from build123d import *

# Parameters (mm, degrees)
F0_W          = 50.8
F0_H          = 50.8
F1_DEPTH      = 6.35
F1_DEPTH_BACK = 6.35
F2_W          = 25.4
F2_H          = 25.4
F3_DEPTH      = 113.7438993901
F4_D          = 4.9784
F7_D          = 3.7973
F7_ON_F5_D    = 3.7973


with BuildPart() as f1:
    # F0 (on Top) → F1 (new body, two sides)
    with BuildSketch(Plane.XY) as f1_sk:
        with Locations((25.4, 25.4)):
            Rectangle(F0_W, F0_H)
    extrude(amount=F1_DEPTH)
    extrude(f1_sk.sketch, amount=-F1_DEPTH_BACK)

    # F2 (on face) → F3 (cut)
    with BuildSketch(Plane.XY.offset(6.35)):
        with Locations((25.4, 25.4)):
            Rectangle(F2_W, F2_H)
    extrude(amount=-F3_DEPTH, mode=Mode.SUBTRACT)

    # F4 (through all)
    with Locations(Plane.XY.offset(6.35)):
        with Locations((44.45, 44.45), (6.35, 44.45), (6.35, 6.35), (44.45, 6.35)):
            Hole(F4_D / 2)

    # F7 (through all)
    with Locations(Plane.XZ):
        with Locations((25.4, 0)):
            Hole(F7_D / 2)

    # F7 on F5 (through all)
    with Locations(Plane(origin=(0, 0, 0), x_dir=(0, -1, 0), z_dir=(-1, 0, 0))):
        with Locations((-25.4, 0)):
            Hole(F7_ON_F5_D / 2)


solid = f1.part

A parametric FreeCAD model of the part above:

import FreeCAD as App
import Part
import Sketcher
Q = App.Units.Quantity

doc = App.newDocument("Part")
params = doc.addObject("Spreadsheet::Sheet", "Params")
for row, (alias, value) in enumerate([
    ("sketch1_width", "2 in"),
    ("pad1_length", "0.25 in"),
    ("pad1_length2", "0.25 in"),
    ("sketch2_width", "1 in"),
    ("pocket1_length", "113.743899 mm"),
    ("sketch3_diameter", "0.196 in"),
    ("hole_diameter", "0.196 in"),
    ("hole2_diameter", "0.1495 in"),
    ("hole3_diameter", "0.1495 in"),
], start=1):
    params.set(f"A{row}", alias)
    params.set(f"B{row}", "=" + value)
    params.setAlias(f"B{row}", alias)

body = doc.addObject("PartDesign::Body", "Body")

sketch1 = body.newObject("Sketcher::SketchObject", "Sketch")
sketch1.AttachmentSupport = (doc.getObject("XY_Plane"), [""])
sketch1.MapMode = "FlatFace"
sketch1.addGeometry(Part.LineSegment(App.Vector(0, 51, 0), App.Vector(0, 0, 0)), False)
sketch1.addGeometry(Part.LineSegment(App.Vector(0, 0, 0), App.Vector(51, 0, 0)), False)
sketch1.addGeometry(Part.LineSegment(App.Vector(51, 0, 0), App.Vector(51, 51, 0)), False)
sketch1.addGeometry(Part.LineSegment(App.Vector(51, 51, 0), App.Vector(0, 51, 0)), False)
sketch1.addConstraint(Sketcher.Constraint("Coincident", 0, 2, 1, 1))
sketch1.addConstraint(Sketcher.Constraint("Coincident", 1, 2, 2, 1))
sketch1.addConstraint(Sketcher.Constraint("Coincident", 2, 2, 3, 1))
sketch1.addConstraint(Sketcher.Constraint("Coincident", 3, 2, 0, 1))
sketch1.addConstraint(Sketcher.Constraint("Vertical", 0))
sketch1.addConstraint(Sketcher.Constraint("Horizontal", 1))
sketch1.addConstraint(Sketcher.Constraint("Vertical", 2))
sketch1.addConstraint(Sketcher.Constraint("Horizontal", 3))
sketch1.addConstraint(Sketcher.Constraint("Coincident", 0, 2, -1, 1))
sketch1.addConstraint(Sketcher.Constraint("Equal", 3, 0))
sketch1.addConstraint(Sketcher.Constraint("DistanceX", 1, 1, 1, 2, Q("2 in")))
sketch1.setExpression("Constraints[10]", "Params.sketch1_width")
pad1 = body.newObject("PartDesign::Pad", "Pad")
pad1.Profile = sketch1
pad1.Type = "TwoLengths"
pad1.setExpression("Length", "Params.pad1_length")
pad1.setExpression("Length2", "Params.pad1_length2")

sketch2 = body.newObject("Sketcher::SketchObject", "Sketch001")
sketch2.AttachmentSupport = (doc.getObject("XY_Plane"), [""])
sketch2.MapMode = "FlatFace"
sketch2.AttachmentOffset = App.Placement(App.Vector(0, 0, 0.25 * 25.4), App.Rotation())
sketch2.addGeometry(Part.LineSegment(App.Vector(13, 38, 0), App.Vector(13, 13, 0)), False)
sketch2.addGeometry(Part.LineSegment(App.Vector(13, 13, 0), App.Vector(38, 13, 0)), False)
sketch2.addGeometry(Part.LineSegment(App.Vector(38, 13, 0), App.Vector(38, 38, 0)), False)
sketch2.addGeometry(Part.LineSegment(App.Vector(38, 38, 0), App.Vector(13, 38, 0)), False)
sketch2.addConstraint(Sketcher.Constraint("Coincident", 0, 2, 1, 1))
sketch2.addConstraint(Sketcher.Constraint("Coincident", 1, 2, 2, 1))
sketch2.addConstraint(Sketcher.Constraint("Coincident", 2, 2, 3, 1))
sketch2.addConstraint(Sketcher.Constraint("Coincident", 3, 2, 0, 1))
sketch2.addConstraint(Sketcher.Constraint("Vertical", 0))
sketch2.addConstraint(Sketcher.Constraint("Horizontal", 1))
sketch2.addConstraint(Sketcher.Constraint("Vertical", 2))
sketch2.addConstraint(Sketcher.Constraint("Horizontal", 3))
sketch2.addConstraint(Sketcher.Constraint("Equal", 3, 0))
sketch2.addConstraint(Sketcher.Constraint("DistanceX", 1, 1, 1, 2, Q("1 in")))
sketch2.addConstraint(Sketcher.Constraint("DistanceX", -1, 1, 0, 2, Q("0.5 in")))
sketch2.addConstraint(Sketcher.Constraint("DistanceY", -1, 1, 0, 2, Q("0.5 in")))
sketch2.setExpression("Constraints[9]", "Params.sketch2_width")
pocket1 = body.newObject("PartDesign::Pocket", "Pocket")
pocket1.Profile = sketch2
pocket1.setExpression("Length", "Params.pocket1_length")

sketch3 = body.newObject("Sketcher::SketchObject", "Sketch002")
sketch3.AttachmentSupport = (doc.getObject("XY_Plane"), [""])
sketch3.MapMode = "FlatFace"
sketch3.AttachmentOffset = App.Placement(App.Vector(0, 0, 0.25 * 25.4), App.Rotation())
sketch3.addGeometry(Part.Circle(App.Vector(44.5, 44.5, 0), App.Vector(0, 0, 1), 2.5), False)
sketch3.addGeometry(Part.Circle(App.Vector(6.3, 44.5, 0), App.Vector(0, 0, 1), 2.5), False)
sketch3.addGeometry(Part.Circle(App.Vector(6.3, 6.3, 0), App.Vector(0, 0, 1), 2.5), False)
sketch3.addGeometry(Part.Circle(App.Vector(44.5, 6.3, 0), App.Vector(0, 0, 1), 2.5), False)
sketch3.addConstraint(Sketcher.Constraint("Equal", 0, 1))
sketch3.addConstraint(Sketcher.Constraint("Equal", 1, 2))
sketch3.addConstraint(Sketcher.Constraint("Equal", 2, 3))
sketch3.addConstraint(Sketcher.Constraint("Horizontal", 0, 3, 1, 3))
sketch3.addConstraint(Sketcher.Constraint("Horizontal", 2, 3, 3, 3))
sketch3.addConstraint(Sketcher.Constraint("Vertical", 1, 3, 2, 3))
sketch3.addConstraint(Sketcher.Constraint("Vertical", 0, 3, 3, 3))
sketch3.addConstraint(Sketcher.Constraint("Diameter", 0, Q("0.196 in")))
sketch3.addConstraint(Sketcher.Constraint("DistanceX", 1, 3, 0, 3, Q("1.5 in")))
sketch3.addConstraint(Sketcher.Constraint("DistanceY", 2, 3, 1, 3, Q("1.5 in")))
sketch3.addConstraint(Sketcher.Constraint("DistanceX", -1, 1, 0, 3, Q("1.75 in")))
sketch3.addConstraint(Sketcher.Constraint("DistanceY", -1, 1, 0, 3, Q("1.75 in")))
sketch3.setExpression("Constraints[7]", "Params.sketch3_diameter")
doc.recompute()
hole = body.newObject("PartDesign::Hole", "Hole")
hole.Profile = sketch3
hole.ThreadType = "None"
hole.setExpression("Diameter", "Params.hole_diameter")
hole.DepthType = "ThroughAll"

sketch4 = body.newObject("Sketcher::SketchObject", "Sketch003")
sketch4.AttachmentSupport = (doc.getObject("XZ_Plane"), [""])
sketch4.MapMode = "FlatFace"
sketch4.addGeometry(Part.Circle(App.Vector(25.4, 0, 0), App.Vector(0, 0, 1), 1.9), False)
sketch4.addConstraint(Sketcher.Constraint("PointOnObject", 0, 3, -1))
sketch4.addConstraint(Sketcher.Constraint("DistanceX", -1, 1, 0, 3, Q("1 in")))
sketch4.addConstraint(Sketcher.Constraint("Diameter", 0, Q("0.1495 in")))
doc.recompute()
hole2 = body.newObject("PartDesign::Hole", "Hole001")
hole2.Profile = sketch4
hole2.ThreadType = "None"
hole2.setExpression("Diameter", "Params.hole2_diameter")
hole2.DepthType = "ThroughAll"

sketch5 = body.newObject("Sketcher::SketchObject", "Sketch004")
sketch5.AttachmentSupport = (doc.getObject("YZ_Plane"), [""])
sketch5.MapMode = "FlatFace"
sketch5.addGeometry(Part.Circle(App.Vector(25.4, 0, 0), App.Vector(0, 0, 1), 1.9), False)
sketch5.addConstraint(Sketcher.Constraint("PointOnObject", 0, 3, -1))
sketch5.addConstraint(Sketcher.Constraint("DistanceX", -1, 1, 0, 3, Q("1 in")))
sketch5.addConstraint(Sketcher.Constraint("Diameter", 0, Q("0.1495 in")))
doc.recompute()
hole3 = body.newObject("PartDesign::Hole", "Hole002")
hole3.Profile = sketch5
hole3.ThreadType = "None"
hole3.setExpression("Diameter", "Params.hole3_diameter")
hole3.DepthType = "ThroughAll"
hole3.Reversed = True

doc.recompute()
